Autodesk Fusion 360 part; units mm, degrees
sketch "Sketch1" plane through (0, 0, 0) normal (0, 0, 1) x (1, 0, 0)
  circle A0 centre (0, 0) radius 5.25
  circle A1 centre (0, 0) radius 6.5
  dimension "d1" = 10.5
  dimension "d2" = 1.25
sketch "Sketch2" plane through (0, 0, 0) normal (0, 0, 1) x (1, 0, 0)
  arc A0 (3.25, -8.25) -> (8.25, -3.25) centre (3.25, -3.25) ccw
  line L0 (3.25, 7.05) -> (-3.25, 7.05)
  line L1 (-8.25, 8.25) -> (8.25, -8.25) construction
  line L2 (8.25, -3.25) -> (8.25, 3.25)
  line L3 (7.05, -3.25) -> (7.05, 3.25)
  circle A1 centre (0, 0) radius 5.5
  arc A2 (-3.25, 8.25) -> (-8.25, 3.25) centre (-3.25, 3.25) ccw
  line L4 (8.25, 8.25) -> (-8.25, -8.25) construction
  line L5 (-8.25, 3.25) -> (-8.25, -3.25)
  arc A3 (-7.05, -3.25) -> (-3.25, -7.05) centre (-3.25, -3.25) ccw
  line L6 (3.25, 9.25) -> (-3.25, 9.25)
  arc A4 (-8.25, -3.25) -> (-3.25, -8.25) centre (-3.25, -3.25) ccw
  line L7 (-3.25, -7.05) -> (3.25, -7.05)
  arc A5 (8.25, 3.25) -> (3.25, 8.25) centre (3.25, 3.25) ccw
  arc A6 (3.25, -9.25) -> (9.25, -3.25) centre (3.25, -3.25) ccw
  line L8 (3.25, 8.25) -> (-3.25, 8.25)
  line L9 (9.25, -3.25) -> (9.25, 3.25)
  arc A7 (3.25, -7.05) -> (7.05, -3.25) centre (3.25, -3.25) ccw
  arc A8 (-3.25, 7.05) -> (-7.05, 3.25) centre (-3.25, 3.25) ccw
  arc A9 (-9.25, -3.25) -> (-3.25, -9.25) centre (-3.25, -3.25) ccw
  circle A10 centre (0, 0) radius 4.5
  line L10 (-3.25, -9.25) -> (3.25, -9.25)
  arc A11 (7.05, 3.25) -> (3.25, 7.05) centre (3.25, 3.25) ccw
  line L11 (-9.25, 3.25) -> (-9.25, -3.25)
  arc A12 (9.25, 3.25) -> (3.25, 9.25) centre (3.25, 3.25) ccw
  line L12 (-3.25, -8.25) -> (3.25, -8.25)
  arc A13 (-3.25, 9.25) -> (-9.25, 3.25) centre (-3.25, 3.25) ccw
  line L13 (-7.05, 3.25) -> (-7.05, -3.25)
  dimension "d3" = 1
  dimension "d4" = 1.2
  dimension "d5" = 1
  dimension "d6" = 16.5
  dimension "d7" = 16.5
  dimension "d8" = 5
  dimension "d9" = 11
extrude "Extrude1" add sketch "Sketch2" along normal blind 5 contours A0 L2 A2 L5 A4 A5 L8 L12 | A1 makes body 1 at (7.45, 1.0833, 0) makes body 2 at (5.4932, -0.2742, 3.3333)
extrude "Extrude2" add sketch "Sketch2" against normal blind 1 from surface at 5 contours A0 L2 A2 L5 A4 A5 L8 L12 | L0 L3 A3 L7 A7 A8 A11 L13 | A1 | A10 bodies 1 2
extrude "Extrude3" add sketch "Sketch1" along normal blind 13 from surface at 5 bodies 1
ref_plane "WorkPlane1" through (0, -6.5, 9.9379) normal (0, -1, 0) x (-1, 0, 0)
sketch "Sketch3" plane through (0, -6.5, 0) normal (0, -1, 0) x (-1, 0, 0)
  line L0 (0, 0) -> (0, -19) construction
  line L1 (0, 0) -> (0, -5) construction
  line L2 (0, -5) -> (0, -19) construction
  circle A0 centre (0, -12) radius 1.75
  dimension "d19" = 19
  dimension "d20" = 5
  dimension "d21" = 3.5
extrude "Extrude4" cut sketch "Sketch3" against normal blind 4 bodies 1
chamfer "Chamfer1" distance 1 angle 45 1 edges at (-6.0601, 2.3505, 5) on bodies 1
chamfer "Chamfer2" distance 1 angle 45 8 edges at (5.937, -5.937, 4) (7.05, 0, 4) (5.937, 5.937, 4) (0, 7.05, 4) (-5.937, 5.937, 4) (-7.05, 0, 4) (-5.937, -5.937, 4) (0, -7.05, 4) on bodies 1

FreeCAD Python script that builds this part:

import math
import FreeCAD as App
import Part
import Sketcher
from FreeCAD import Vector
Q = App.Units.Quantity


def edges_at(feature, points):
    """Names of the edges that pass closest to the given points."""
    edges = feature.Shape.Edges
    near = lambda p: min(range(len(edges)), key=lambda i: edges[i].distToShape(Part.Vertex(*p))[0])
    return sorted({f"Edge{near(p) + 1}" for p in points})

doc = App.newDocument("Part")
body = doc.addObject("PartDesign::Body", "Body")
body.AllowCompound = True

# Sketch on XY plane
sketch1 = body.newObject("Sketcher::SketchObject", "Sketch")
sketch1.AttachmentSupport = (doc.getObject("XY_Plane"), [""])
sketch1.MapMode = "FlatFace"
sketch1.addGeometry([
    Part.LineSegment(Vector(-3.2, -8.2, 0), Vector(3.2, -8.2, 0)),  # 0
    Part.ArcOfCircle(Part.Circle(Vector(3.2, -3.2, 0), Vector(0, 0, 1), 5), math.radians(-90), math.radians(0)),  # 1
    Part.LineSegment(Vector(8.2, -3.2, 0), Vector(8.2, 3.2, 0)),  # 2
    Part.ArcOfCircle(Part.Circle(Vector(3.2, 3.2, 0), Vector(0, 0, 1), 5), math.radians(0), math.radians(90)),  # 3
    Part.LineSegment(Vector(3.2, 8.2, 0), Vector(-3.2, 8.2, 0)),  # 4
    Part.ArcOfCircle(Part.Circle(Vector(-3.2, 3.2, 0), Vector(0, 0, 1), 5), math.radians(90), math.radians(180)),  # 5
    Part.LineSegment(Vector(-8.2, 3.2, 0), Vector(-8.2, -3.2, 0)),  # 6
    Part.ArcOfCircle(Part.Circle(Vector(-3.2, -3.2, 0), Vector(0, 0, 1), 5), math.radians(180), math.radians(270)),  # 7
    Part.LineSegment(Vector(-3.2, 7, 0), Vector(3.2, 7, 0)),  # 8
    Part.ArcOfCircle(Part.Circle(Vector(3.2, 3.2, 0), Vector(0, 0, 1), 3.8), math.radians(0), math.radians(90)),  # 9
    Part.LineSegment(Vector(7, 3.2, 0), Vector(7, -3.2, 0)),  # 10
    Part.ArcOfCircle(Part.Circle(Vector(3.2, -3.2, 0), Vector(0, 0, 1), 3.8), math.radians(-90), math.radians(0)),  # 11
    Part.LineSegment(Vector(3.2, -7, 0), Vector(-3.2, -7, 0)),  # 12
    Part.ArcOfCircle(Part.Circle(Vector(-3.2, -3.2, 0), Vector(0, 0, 1), 3.8), math.radians(180), math.radians(270)),  # 13
    Part.LineSegment(Vector(-7, -3.2, 0), Vector(-7, 3.2, 0)),  # 14
    Part.ArcOfCircle(Part.Circle(Vector(-3.2, 3.2, 0), Vector(0, 0, 1), 3.8), math.radians(90), math.radians(180)),  # 15
    Part.Circle(Vector(0, 0, 0), Vector(0, 0, 1), 5.5),  # 16
    Part.Circle(Vector(0, 0, 0), Vector(0, 0, 1), 4.5),  # 17
], False)
sketch1.addConstraint([
    Sketcher.Constraint("Tangent", 0, 2, 1, 1),
    Sketcher.Constraint("Tangent", 1, 2, 2, 1),
    Sketcher.Constraint("Tangent", 2, 2, 3, 1),
    Sketcher.Constraint("Tangent", 3, 2, 4, 1),
    Sketcher.Constraint("Tangent", 4, 2, 5, 1),
    Sketcher.Constraint("Tangent", 5, 2, 6, 1),
    Sketcher.Constraint("Tangent", 6, 2, 7, 1),
    Sketcher.Constraint("Tangent", 7, 2, 0, 1),
    Sketcher.Constraint("Tangent", 8, 2, 9, 2),
    Sketcher.Constraint("Tangent", 9, 1, 10, 1),
    Sketcher.Constraint("Tangent", 10, 2, 11, 2),
    Sketcher.Constraint("Tangent", 11, 1, 12, 1),
    Sketcher.Constraint("Tangent", 12, 2, 13, 2),
    Sketcher.Constraint("Tangent", 13, 1, 14, 1),
    Sketcher.Constraint("Tangent", 14, 2, 15, 2),
    Sketcher.Constraint("Tangent", 15, 1, 8, 1),
    Sketcher.Constraint("Horizontal", 0),
    Sketcher.Constraint("Vertical", 2),
    Sketcher.Constraint("Horizontal", 4),
    Sketcher.Constraint("Vertical", 6),
    Sketcher.Constraint("Horizontal", 8),
    Sketcher.Constraint("Vertical", 10),
    Sketcher.Constraint("Horizontal", 12),
    Sketcher.Constraint("Vertical", 14),
    Sketcher.Constraint("Coincident", 16, 3, -1, 1),
    Sketcher.Constraint("Coincident", 17, 3, -1, 1),
    Sketcher.Constraint("Coincident", 9, 3, 3, 3),
    Sketcher.Constraint("Coincident", 11, 3, 1, 3),
    Sketcher.Constraint("Coincident", 13, 3, 7, 3),
    Sketcher.Constraint("Equal", 1, 3),
    Sketcher.Constraint("Equal", 3, 5),
    Sketcher.Constraint("Equal", 5, 7),
    Sketcher.Constraint("Equal", 13, 15),
    Sketcher.Constraint("Symmetric", 1, 3, 5, 3, -1, 1),
    Sketcher.Constraint("Equal", 12, 2),
    Sketcher.Constraint("Diameter", 16, Q("11 mm")),
    Sketcher.Constraint("Radius", 1, Q("5 mm")),
    Sketcher.Constraint("Diameter", 17, Q("9 mm")),
    Sketcher.Constraint("Radius", 9, Q("3.8 mm")),
    Sketcher.Constraint("DistanceX", 0, 1, 0, 2, Q("6.5 mm")),
])
pad1 = body.newObject("PartDesign::Pad", "Pad")
pad1.Profile = sketch1
pad1.Length = 5

# Sketch on XY plane
sketch2 = body.newObject("Sketcher::SketchObject", "Sketch001")
sketch2.AttachmentSupport = (doc.getObject("XY_Plane"), [""])
sketch2.MapMode = "FlatFace"
sketch2.AttachmentOffset = App.Placement(Vector(0, 0, 5), App.Rotation())
sketch2.addGeometry([
    Part.LineSegment(Vector(-3, -8, 0), Vector(3, -8, 0)),  # 0
    Part.ArcOfCircle(Part.Circle(Vector(3, -3, 0), Vector(0, 0, 1), 5), math.radians(-90), math.radians(0)),  # 1
    Part.LineSegment(Vector(8, -3, 0), Vector(8, 3, 0)),  # 2
    Part.ArcOfCircle(Part.Circle(Vector(3, 3, 0), Vector(0, 0, 1), 5), math.radians(0), math.radians(90)),  # 3
    Part.LineSegment(Vector(3, 8, 0), Vector(-3, 8, 0)),  # 4
    Part.ArcOfCircle(Part.Circle(Vector(-3, 3, 0), Vector(0, 0, 1), 5), math.radians(90), math.radians(180)),  # 5
    Part.LineSegment(Vector(-8, 3, 0), Vector(-8, -3, 0)),  # 6
    Part.ArcOfCircle(Part.Circle(Vector(-3, -3, 0), Vector(0, 0, 1), 5), math.radians(180), math.radians(270)),  # 7
], False)
sketch2.addConstraint([
    Sketcher.Constraint("Tangent", 0, 2, 1, 1),
    Sketcher.Constraint("Tangent", 1, 2, 2, 1),
    Sketcher.Constraint("Tangent", 2, 2, 3, 1),
    Sketcher.Constraint("Tangent", 3, 2, 4, 1),
    Sketcher.Constraint("Tangent", 4, 2, 5, 1),
    Sketcher.Constraint("Tangent", 5, 2, 6, 1),
    Sketcher.Constraint("Tangent", 6, 2, 7, 1),
    Sketcher.Constraint("Tangent", 7, 2, 0, 1),
    Sketcher.Constraint("Horizontal", 0),
    Sketcher.Constraint("Vertical", 2),
    Sketcher.Constraint("Horizontal", 4),
    Sketcher.Constraint("Vertical", 6),
    Sketcher.Constraint("Equal", 1, 3),
    Sketcher.Constraint("Equal", 3, 5),
    Sketcher.Constraint("Equal", 5, 7),
    Sketcher.Constraint("Symmetric", 1, 3, 5, 3, -1, 1),
    Sketcher.Constraint("Equal", 4, 2),
    Sketcher.Constraint("Radius", 1, Q("5 mm")),
    Sketcher.Constraint("DistanceX", 0, 1, 0, 2, Q("6.5 mm")),
])
pad2 = body.newObject("PartDesign::Pad", "Pad001")
pad2.Profile = sketch2
pad2.Length = 1
pad2.Reversed = True

# Sketch on XY plane
sketch3 = body.newObject("Sketcher::SketchObject", "Sketch002")
sketch3.AttachmentSupport = (doc.getObject("XY_Plane"), [""])
sketch3.MapMode = "FlatFace"
sketch3.AttachmentOffset = App.Placement(Vector(0, 0, 5), App.Rotation())
sketch3.addGeometry([
    Part.Circle(Vector(0, 0, 0), Vector(0, 0, 1), 6),
    Part.Circle(Vector(0, 0, 0), Vector(0, 0, 1), 5),
], False)
sketch3.addConstraint([
    Sketcher.Constraint("Coincident", 0, 3, -1, 1),
    Sketcher.Constraint("Coincident", 1, 3, -1, 1),
    Sketcher.Constraint("Diameter", 1, Q("10.5 mm")),
    Sketcher.Constraint("Diameter", 0, Q("13 mm")),
])
pad3 = body.newObject("PartDesign::Pad", "Pad002")
pad3.Profile = sketch3
pad3.Length = 13

# Sketch on XZ plane
sketch4 = body.newObject("Sketcher::SketchObject", "Sketch003")
sketch4.AttachmentSupport = (doc.getObject("XZ_Plane"), [""])
sketch4.MapMode = "FlatFace"
sketch4.AttachmentOffset = App.Placement(Vector(0, 0, 6.5), App.Rotation())
sketch4.addGeometry(Part.Circle(Vector(0, 12, 0), Vector(0, 0, 1), 1.8), False)
sketch4.addConstraint([
    Sketcher.Constraint("PointOnObject", 0, 3, -2),
    Sketcher.Constraint("Diameter", 0, Q("3.5 mm")),
    Sketcher.Constraint("DistanceY", -1, 1, 0, 3, Q("12 mm")),
])
pocket1 = body.newObject("PartDesign::Pocket", "Pocket")
pocket1.Profile = sketch4
pocket1.Length = 4
doc.recompute()

chamfer = body.newObject("PartDesign::Chamfer", "Chamfer")
chamfer.Base = (pocket1, edges_at(pocket1, [(-6.06, 2.35, 5)]))
chamfer.Size = 1
doc.recompute()

chamfer2 = body.newObject("PartDesign::Chamfer", "Chamfer001")
chamfer2.Base = (chamfer, edges_at(chamfer, [
    (5.937, -5.937, 4),
    (7.05, 0, 4),
    (5.937, 5.937, 4),
    (0, 7.05, 4),
    (-5.937, 5.937, 4),
    (-7.05, 0, 4),
    (-5.937, -5.937, 4),
    (0, -7.05, 4),
]))
chamfer2.Size = 1

doc.recompute()
